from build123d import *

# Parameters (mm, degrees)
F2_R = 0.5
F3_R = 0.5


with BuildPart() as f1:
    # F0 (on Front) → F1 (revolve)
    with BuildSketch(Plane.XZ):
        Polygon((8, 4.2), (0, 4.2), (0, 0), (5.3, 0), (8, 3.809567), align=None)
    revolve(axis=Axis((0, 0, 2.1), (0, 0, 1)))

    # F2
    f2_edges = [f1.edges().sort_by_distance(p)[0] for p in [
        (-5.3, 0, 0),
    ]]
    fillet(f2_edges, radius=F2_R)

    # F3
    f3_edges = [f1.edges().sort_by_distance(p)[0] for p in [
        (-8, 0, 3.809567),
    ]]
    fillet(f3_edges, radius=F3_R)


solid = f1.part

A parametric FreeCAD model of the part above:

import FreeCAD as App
import Part
import Sketcher

V = App.Vector
Q = App.Units.Quantity


def edges_at(feature, points):
    """Names of the edges that pass closest to the given points."""
    edges = feature.Shape.Edges
    near = lambda p: min(range(len(edges)), key=lambda i: edges[i].distToShape(Part.Vertex(*p))[0])
    return sorted({f"Edge{near(p) + 1}" for p in points})

doc = App.newDocument("Part")
body = doc.addObject("PartDesign::Body", "Body")

# Sketch on XZ plane
sketch1 = body.newObject("Sketcher::SketchObject", "Sketch")
sketch1.AttachmentSupport = (doc.getObject("XZ_Plane"), [""])
sketch1.MapMode = "FlatFace"
sketch1.addGeometry([
    Part.LineSegment(V(8, 4.2, 0), V(0, 4.2, 0)),  # 0
    Part.LineSegment(V(0, 4.2, 0), V(0, 0, 0)),  # 1
    Part.LineSegment(V(0, 0, 0), V(5.3, 0, 0)),  # 2
    Part.LineSegment(V(5.3, 0, 0), V(8, 3.81, 0)),  # 3
    Part.LineSegment(V(8, 3.81, 0), V(8, 4.2, 0)),  # 4
], False)
sketch1.addConstraint([
    Sketcher.Constraint("Coincident", 0, 2, 1, 1),
    Sketcher.Constraint("Coincident", 1, 2, 2, 1),
    Sketcher.Constraint("Coincident", 2, 2, 3, 1),
    Sketcher.Constraint("Coincident", 3, 2, 4, 1),
    Sketcher.Constraint("Coincident", 4, 2, 0, 1),
    Sketcher.Constraint("Horizontal", 0),
    Sketcher.Constraint("Vertical", 1),
    Sketcher.Constraint("Horizontal", 2),
    Sketcher.Constraint("Vertical", 4),
    Sketcher.Constraint("Coincident", 1, 2, -1, 1),
    Sketcher.Constraint("DistanceX", 0, 2, 0, 1, Q("8 mm")),
    Sketcher.Constraint("DistanceX", 2, 1, 2, 2, Q("5.3 mm")),
    Sketcher.Constraint("DistanceY", 1, 2, 1, 1, Q("4.2 mm")),
    Sketcher.Constraint("DistanceY", 4, 1, 4, 2, Q("0.390433 mm")),
])
revolution = body.newObject("PartDesign::Revolution", "Revolution")
revolution.Profile = sketch1
revolution.ReferenceAxis = (sketch1, ["V_Axis"])
revolution.Angle = 360
doc.recompute()

fillet = body.newObject("PartDesign::Fillet", "Fillet")
fillet.Base = (revolution, edges_at(revolution, [(-5.3, 0, 0)]))
fillet.Radius = 0.5
doc.recompute()

fillet2 = body.newObject("PartDesign::Fillet", "Fillet001")
fillet2.Base = (fillet, edges_at(fillet, [(-8, 0, 3.81)]))
fillet2.Radius = 0.5

doc.recompute()
